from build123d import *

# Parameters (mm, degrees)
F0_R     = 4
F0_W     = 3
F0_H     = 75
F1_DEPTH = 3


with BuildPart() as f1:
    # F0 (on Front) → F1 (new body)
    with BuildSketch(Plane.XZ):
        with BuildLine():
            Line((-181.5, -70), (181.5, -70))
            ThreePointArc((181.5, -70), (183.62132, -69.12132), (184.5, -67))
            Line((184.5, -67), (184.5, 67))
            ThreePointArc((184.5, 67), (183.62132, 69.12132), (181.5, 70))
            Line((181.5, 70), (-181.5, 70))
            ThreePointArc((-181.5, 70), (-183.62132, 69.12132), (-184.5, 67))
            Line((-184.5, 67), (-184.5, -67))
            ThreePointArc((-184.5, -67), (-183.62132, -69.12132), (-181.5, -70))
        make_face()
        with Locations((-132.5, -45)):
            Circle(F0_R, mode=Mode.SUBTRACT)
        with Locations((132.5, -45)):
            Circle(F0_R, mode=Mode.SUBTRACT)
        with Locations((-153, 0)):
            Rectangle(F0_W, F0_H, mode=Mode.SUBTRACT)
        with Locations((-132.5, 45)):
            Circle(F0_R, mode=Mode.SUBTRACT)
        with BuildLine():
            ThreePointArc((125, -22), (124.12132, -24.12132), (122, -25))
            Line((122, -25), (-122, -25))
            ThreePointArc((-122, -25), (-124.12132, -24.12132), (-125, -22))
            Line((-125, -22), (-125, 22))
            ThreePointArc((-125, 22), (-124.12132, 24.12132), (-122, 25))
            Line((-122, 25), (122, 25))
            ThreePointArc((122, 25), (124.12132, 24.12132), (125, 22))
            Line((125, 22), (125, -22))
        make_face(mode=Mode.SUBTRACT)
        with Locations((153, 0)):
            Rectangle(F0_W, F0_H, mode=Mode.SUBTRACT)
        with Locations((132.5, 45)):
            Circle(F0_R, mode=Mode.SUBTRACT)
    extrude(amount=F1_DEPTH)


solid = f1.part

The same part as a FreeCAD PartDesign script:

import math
import FreeCAD as App
import Part
import Sketcher

V = App.Vector
Q = App.Units.Quantity

doc = App.newDocument("Part")
body = doc.addObject("PartDesign::Body", "Body")

# Sketch on XZ plane
sketch1 = doc.addObject("Sketcher::SketchObject", "Sketch")
body.addObject(sketch1)
sketch1.AttachmentSupport = (doc.XZ_Plane, [""])
sketch1.MapMode = "FlatFace"
sketch1.addGeometry(Part.LineSegment(V(-181.5, -70, 0), V(181.5, -70, 0)), False)
sketch1.addGeometry(Part.ArcOfCircle(Part.Circle(V(181.5, -67, 0), V(0, 0, 1), 3), math.radians(-90), math.radians(0)), False)
sketch1.addGeometry(Part.LineSegment(V(184.5, -67, 0), V(184.5, 67, 0)), False)
sketch1.addGeometry(Part.ArcOfCircle(Part.Circle(V(181.5, 67, 0), V(0, 0, 1), 3), math.radians(0), math.radians(90)), False)
sketch1.addGeometry(Part.LineSegment(V(181.5, 70, 0), V(-181.5, 70, 0)), False)
sketch1.addGeometry(Part.ArcOfCircle(Part.Circle(V(-181.5, 67, 0), V(0, 0, 1), 3), math.radians(90), math.radians(180)), False)
sketch1.addGeometry(Part.LineSegment(V(-184.5, 67, 0), V(-184.5, -67, 0)), False)
sketch1.addGeometry(Part.ArcOfCircle(Part.Circle(V(-181.5, -67, 0), V(0, 0, 1), 3), math.radians(-180), math.radians(-90)), False)
sketch1.addGeometry(Part.Circle(V(-132.5, -45, 0), V(0, 0, 1), 4), False)
sketch1.addGeometry(Part.LineSegment(V(-151.5, -37.5, 0), V(-154.5, -37.5, 0)), False)
sketch1.addGeometry(Part.LineSegment(V(-154.5, -37.5, 0), V(-154.5, 37.5, 0)), False)
sketch1.addGeometry(Part.LineSegment(V(-154.5, 37.5, 0), V(-151.5, 37.5, 0)), False)
sketch1.addGeometry(Part.LineSegment(V(-151.5, 37.5, 0), V(-151.5, -37.5, 0)), False)
sketch1.addGeometry(Part.Circle(V(132.5, -45, 0), V(0, 0, 1), 4), False)
sketch1.addGeometry(Part.LineSegment(V(125, 22, 0), V(125, -22, 0)), False)
sketch1.addGeometry(Part.ArcOfCircle(Part.Circle(V(122, -22, 0), V(0, 0, 1), 3), math.radians(-90), math.radians(0)), False)
sketch1.addGeometry(Part.LineSegment(V(122, -25, 0), V(-122, -25, 0)), False)
sketch1.addGeometry(Part.ArcOfCircle(Part.Circle(V(-122, -22, 0), V(0, 0, 1), 3), math.radians(-180), math.radians(-90)), False)
sketch1.addGeometry(Part.LineSegment(V(-125, -22, 0), V(-125, 22, 0)), False)
sketch1.addGeometry(Part.ArcOfCircle(Part.Circle(V(-122, 22, 0), V(0, 0, 1), 3), math.radians(90), math.radians(180)), False)
sketch1.addGeometry(Part.LineSegment(V(-122, 25, 0), V(122, 25, 0)), False)
sketch1.addGeometry(Part.ArcOfCircle(Part.Circle(V(122, 22, 0), V(0, 0, 1), 3), math.radians(0), math.radians(90)), False)
sketch1.addGeometry(Part.LineSegment(V(154.5, -37.5, 0), V(151.5, -37.5, 0)), False)
sketch1.addGeometry(Part.LineSegment(V(151.5, -37.5, 0), V(151.5, 37.5, 0)), False)
sketch1.addGeometry(Part.LineSegment(V(151.5, 37.5, 0), V(154.5, 37.5, 0)), False)
sketch1.addGeometry(Part.LineSegment(V(154.5, 37.5, 0), V(154.5, -37.5, 0)), False)
sketch1.addGeometry(Part.Circle(V(-132.5, 45, 0), V(0, 0, 1), 4), False)
sketch1.addGeometry(Part.Circle(V(132.5, 45, 0), V(0, 0, 1), 4), False)
sketch1.addConstraint(Sketcher.Constraint("Tangent", 0, 2, 1, 1))
sketch1.addConstraint(Sketcher.Constraint("Tangent", 1, 2, 2, 1))
sketch1.addConstraint(Sketcher.Constraint("Tangent", 2, 2, 3, 1))
sketch1.addConstraint(Sketcher.Constraint("Tangent", 3, 2, 4, 1))
sketch1.addConstraint(Sketcher.Constraint("Tangent", 4, 2, 5, 1))
sketch1.addConstraint(Sketcher.Constraint("Tangent", 5, 2, 6, 1))
sketch1.addConstraint(Sketcher.Constraint("Tangent", 6, 2, 7, 1))
sketch1.addConstraint(Sketcher.Constraint("Tangent", 7, 2, 0, 1))
sketch1.addConstraint(Sketcher.Constraint("Coincident", 9, 2, 10, 1))
sketch1.addConstraint(Sketcher.Constraint("Coincident", 10, 2, 11, 1))
sketch1.addConstraint(Sketcher.Constraint("Coincident", 11, 2, 12, 1))
sketch1.addConstraint(Sketcher.Constraint("Coincident", 12, 2, 9, 1))
sketch1.addConstraint(Sketcher.Constraint("Tangent", 14, 2, 15, 2))
sketch1.addConstraint(Sketcher.Constraint("Tangent", 15, 1, 16, 1))
sketch1.addConstraint(Sketcher.Constraint("Tangent", 16, 2, 17, 2))
sketch1.addConstraint(Sketcher.Constraint("Tangent", 17, 1, 18, 1))
sketch1.addConstraint(Sketcher.Constraint("Tangent", 18, 2, 19, 2))
sketch1.addConstraint(Sketcher.Constraint("Tangent", 19, 1, 20, 1))
sketch1.addConstraint(Sketcher.Constraint("Tangent", 20, 2, 21, 2))
sketch1.addConstraint(Sketcher.Constraint("Tangent", 21, 1, 14, 1))
sketch1.addConstraint(Sketcher.Constraint("Coincident", 22, 2, 23, 1))
sketch1.addConstraint(Sketcher.Constraint("Coincident", 23, 2, 24, 1))
sketch1.addConstraint(Sketcher.Constraint("Coincident", 24, 2, 25, 1))
sketch1.addConstraint(Sketcher.Constraint("Coincident", 25, 2, 22, 1))
sketch1.addConstraint(Sketcher.Constraint("Horizontal", 0))
sketch1.addConstraint(Sketcher.Constraint("Vertical", 2))
sketch1.addConstraint(Sketcher.Constraint("Horizontal", 4))
sketch1.addConstraint(Sketcher.Constraint("Vertical", 6))
sketch1.addConstraint(Sketcher.Constraint("Horizontal", 9))
sketch1.addConstraint(Sketcher.Constraint("Vertical", 10))
sketch1.addConstraint(Sketcher.Constraint("Horizontal", 11))
sketch1.addConstraint(Sketcher.Constraint("Vertical", 12))
sketch1.addConstraint(Sketcher.Constraint("Vertical", 14))
sketch1.addConstraint(Sketcher.Constraint("Horizontal", 16))
sketch1.addConstraint(Sketcher.Constraint("Vertical", 18))
sketch1.addConstraint(Sketcher.Constraint("Horizontal", 20))
sketch1.addConstraint(Sketcher.Constraint("Horizontal", 22))
sketch1.addConstraint(Sketcher.Constraint("Vertical", 23))
sketch1.addConstraint(Sketcher.Constraint("Horizontal", 24))
sketch1.addConstraint(Sketcher.Constraint("Vertical", 25))
sketch1.addConstraint(Sketcher.Constraint("Equal", 1, 3))
sketch1.addConstraint(Sketcher.Constraint("Equal", 3, 5))
sketch1.addConstraint(Sketcher.Constraint("Equal", 5, 7))
sketch1.addConstraint(Sketcher.Constraint("Equal", 8, 13))
sketch1.addConstraint(Sketcher.Constraint("Equal", 7, 15))
sketch1.addConstraint(Sketcher.Constraint("Equal", 15, 17))
sketch1.addConstraint(Sketcher.Constraint("Equal", 17, 19))
sketch1.addConstraint(Sketcher.Constraint("Equal", 19, 21))
sketch1.addConstraint(Sketcher.Constraint("Equal", 13, 26))
sketch1.addConstraint(Sketcher.Constraint("Equal", 26, 27))
sketch1.addConstraint(Sketcher.Constraint("Symmetric", 1, 3, 5, 3, -1, 1))
sketch1.addConstraint(Sketcher.Constraint("Symmetric", 15, 3, 19, 3, -1, 1))
sketch1.addConstraint(Sketcher.Constraint("Symmetric", 13, 3, 26, 3, -1, 1))
sketch1.addConstraint(Sketcher.Constraint("Symmetric", 8, 3, 27, 3, -1, 1))
sketch1.addConstraint(Sketcher.Constraint("Symmetric", 11, 2, 22, 2, -1, 1))
sketch1.addConstraint(Sketcher.Constraint("Symmetric", 9, 2, 24, 2, -1, 1))
sketch1.addConstraint(Sketcher.Constraint("Symmetric", 8, 3, 13, 3, -2))
sketch1.addConstraint(Sketcher.Constraint("Horizontal", 12, 2, 22, 2))
sketch1.addConstraint(Sketcher.Constraint("Diameter", 8, Q("8 mm")))
sketch1.addConstraint(Sketcher.Constraint("Radius", 1, Q("3.000001 mm")))
sketch1.addConstraint(Sketcher.Constraint("DistanceX", 0, 1, 0, 2, Q("363 mm")))
sketch1.addConstraint(Sketcher.Constraint("DistanceX", 9, 2, 9, 1, Q("3 mm")))
sketch1.addConstraint(Sketcher.Constraint("DistanceX", 16, 2, 16, 1, Q("244 mm")))
sketch1.addConstraint(Sketcher.Constraint("DistanceY", 2, 1, 2, 2, Q("134 mm")))
sketch1.addConstraint(Sketcher.Constraint("DistanceY", 10, 1, 10, 2, Q("75 mm")))
sketch1.addConstraint(Sketcher.Constraint("DistanceY", 14, 2, 14, 1, Q("44 mm")))
sketch1.addConstraint(Sketcher.Constraint("DistanceY", 8, 3, -1, 1, Q("45 mm")))
sketch1.addConstraint(Sketcher.Constraint("DistanceX", 7, 3, 8, 3, Q("48.999999 mm")))
sketch1.addConstraint(Sketcher.Constraint("DistanceX", 9, 2, 8, 3, Q("22 mm")))
pad1 = doc.addObject("PartDesign::Pad", "Pad")
body.addObject(pad1)
pad1.Profile = sketch1
pad1.Length = 3

doc.recompute()
